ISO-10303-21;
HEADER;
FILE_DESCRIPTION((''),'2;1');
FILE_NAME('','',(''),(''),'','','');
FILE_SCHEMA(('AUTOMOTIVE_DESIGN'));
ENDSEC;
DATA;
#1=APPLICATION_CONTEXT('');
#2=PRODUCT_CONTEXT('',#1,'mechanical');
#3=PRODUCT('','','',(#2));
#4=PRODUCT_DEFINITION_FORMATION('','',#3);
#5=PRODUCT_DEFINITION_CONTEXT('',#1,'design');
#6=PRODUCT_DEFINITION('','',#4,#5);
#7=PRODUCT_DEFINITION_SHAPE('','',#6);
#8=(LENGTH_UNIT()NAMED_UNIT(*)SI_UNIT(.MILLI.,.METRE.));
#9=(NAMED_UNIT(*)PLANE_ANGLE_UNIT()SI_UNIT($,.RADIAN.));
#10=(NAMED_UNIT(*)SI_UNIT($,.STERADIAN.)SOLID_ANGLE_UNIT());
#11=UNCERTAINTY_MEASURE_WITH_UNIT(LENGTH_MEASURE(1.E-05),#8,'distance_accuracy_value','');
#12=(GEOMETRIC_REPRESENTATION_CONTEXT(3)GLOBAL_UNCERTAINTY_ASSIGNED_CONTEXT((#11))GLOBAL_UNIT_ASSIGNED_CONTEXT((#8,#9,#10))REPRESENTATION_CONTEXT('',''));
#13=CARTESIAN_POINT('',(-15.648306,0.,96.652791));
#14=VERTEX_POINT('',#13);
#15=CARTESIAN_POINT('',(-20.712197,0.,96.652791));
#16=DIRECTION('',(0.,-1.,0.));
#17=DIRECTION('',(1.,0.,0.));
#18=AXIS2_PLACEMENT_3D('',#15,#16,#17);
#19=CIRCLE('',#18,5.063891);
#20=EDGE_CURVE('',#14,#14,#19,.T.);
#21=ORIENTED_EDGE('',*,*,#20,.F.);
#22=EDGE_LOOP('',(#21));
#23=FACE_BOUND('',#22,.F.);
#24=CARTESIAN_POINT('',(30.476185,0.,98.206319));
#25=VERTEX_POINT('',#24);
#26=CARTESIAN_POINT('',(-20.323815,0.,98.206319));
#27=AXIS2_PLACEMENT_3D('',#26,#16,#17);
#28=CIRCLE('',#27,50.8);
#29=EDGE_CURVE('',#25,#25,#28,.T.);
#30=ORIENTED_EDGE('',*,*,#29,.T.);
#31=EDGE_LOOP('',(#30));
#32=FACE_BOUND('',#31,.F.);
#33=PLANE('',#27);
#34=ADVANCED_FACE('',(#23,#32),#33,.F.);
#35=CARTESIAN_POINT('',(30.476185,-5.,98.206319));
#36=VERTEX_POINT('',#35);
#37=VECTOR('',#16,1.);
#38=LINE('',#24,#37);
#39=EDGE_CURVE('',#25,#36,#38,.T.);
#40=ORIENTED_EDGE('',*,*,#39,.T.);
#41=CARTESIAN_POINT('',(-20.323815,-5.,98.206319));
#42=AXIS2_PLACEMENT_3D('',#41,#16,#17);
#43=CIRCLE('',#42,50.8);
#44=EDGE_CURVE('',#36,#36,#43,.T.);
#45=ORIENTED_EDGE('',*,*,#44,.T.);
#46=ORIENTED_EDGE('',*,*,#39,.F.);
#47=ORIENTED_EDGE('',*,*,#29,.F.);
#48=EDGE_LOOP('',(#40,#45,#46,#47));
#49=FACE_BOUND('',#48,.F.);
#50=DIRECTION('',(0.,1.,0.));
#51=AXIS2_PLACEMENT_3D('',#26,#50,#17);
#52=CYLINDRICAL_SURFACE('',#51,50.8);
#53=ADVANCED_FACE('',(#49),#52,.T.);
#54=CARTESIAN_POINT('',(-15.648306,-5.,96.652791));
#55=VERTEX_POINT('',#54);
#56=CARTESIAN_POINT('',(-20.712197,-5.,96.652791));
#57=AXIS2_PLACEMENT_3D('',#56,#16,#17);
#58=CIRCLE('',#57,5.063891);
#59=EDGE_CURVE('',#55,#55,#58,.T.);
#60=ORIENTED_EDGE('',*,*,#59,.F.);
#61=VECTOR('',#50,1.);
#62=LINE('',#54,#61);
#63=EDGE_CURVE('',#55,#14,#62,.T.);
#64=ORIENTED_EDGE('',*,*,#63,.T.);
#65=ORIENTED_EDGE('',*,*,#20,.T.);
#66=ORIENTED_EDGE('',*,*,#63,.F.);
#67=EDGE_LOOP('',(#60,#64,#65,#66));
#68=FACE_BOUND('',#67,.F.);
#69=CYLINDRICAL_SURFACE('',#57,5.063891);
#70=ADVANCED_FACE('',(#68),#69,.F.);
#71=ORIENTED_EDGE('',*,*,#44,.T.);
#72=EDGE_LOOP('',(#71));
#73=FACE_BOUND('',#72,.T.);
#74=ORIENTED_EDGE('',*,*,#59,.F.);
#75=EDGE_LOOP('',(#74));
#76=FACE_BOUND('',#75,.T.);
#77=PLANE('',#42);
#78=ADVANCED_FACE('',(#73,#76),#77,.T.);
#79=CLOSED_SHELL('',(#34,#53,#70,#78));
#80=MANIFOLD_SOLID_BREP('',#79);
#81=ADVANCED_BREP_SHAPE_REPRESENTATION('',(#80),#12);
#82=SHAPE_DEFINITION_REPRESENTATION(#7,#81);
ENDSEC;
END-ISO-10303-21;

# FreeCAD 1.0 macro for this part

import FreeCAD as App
import Part
import Sketcher

doc = App.newDocument("Part")
body = doc.addObject("PartDesign::Body", "Body")

sketch1 = body.newObject("Sketcher::SketchObject", "Sketch")
sketch1.AttachmentSupport = (doc.getObject("XZ_Plane"), [""])
sketch1.MapMode = "FlatFace"
sketch1.addGeometry(Part.Circle(App.Vector(-20, 98, 0), App.Vector(0, 0, 1), 51), False)
sketch1.addConstraint([
    Sketcher.Constraint("Diameter", 0, 101.6),
    Sketcher.Constraint("DistanceY", -1, 1, 0, 3, 98.206319),
    Sketcher.Constraint("DistanceX", 0, 3, -1, 1, 20.323815),
])
pad1 = body.newObject("PartDesign::Pad", "Pad")
pad1.Profile = sketch1
pad1.Length = 5

sketch2 = body.newObject("Sketcher::SketchObject", "Sketch001")
sketch2.AttachmentSupport = (doc.getObject("XZ_Plane"), [""])
sketch2.MapMode = "FlatFace"
sketch2.AttachmentOffset = App.Placement(App.Vector(0, 0, 5), App.Rotation())
sketch2.addGeometry(Part.Circle(App.Vector(-21, 97, 0), App.Vector(0, 0, 1), 5), False)
sketch2.addConstraint([
    Sketcher.Constraint("Diameter", 0, 10.127782),
    Sketcher.Constraint("DistanceY", -1, 1, 0, 3, 96.652791),
    Sketcher.Constraint("DistanceX", 0, 3, -1, 1, 20.712197),
])
pocket1 = body.newObject("PartDesign::Pocket", "Pocket")
pocket1.Profile = sketch2
pocket1.Type = "ThroughAll"

doc.recompute()
